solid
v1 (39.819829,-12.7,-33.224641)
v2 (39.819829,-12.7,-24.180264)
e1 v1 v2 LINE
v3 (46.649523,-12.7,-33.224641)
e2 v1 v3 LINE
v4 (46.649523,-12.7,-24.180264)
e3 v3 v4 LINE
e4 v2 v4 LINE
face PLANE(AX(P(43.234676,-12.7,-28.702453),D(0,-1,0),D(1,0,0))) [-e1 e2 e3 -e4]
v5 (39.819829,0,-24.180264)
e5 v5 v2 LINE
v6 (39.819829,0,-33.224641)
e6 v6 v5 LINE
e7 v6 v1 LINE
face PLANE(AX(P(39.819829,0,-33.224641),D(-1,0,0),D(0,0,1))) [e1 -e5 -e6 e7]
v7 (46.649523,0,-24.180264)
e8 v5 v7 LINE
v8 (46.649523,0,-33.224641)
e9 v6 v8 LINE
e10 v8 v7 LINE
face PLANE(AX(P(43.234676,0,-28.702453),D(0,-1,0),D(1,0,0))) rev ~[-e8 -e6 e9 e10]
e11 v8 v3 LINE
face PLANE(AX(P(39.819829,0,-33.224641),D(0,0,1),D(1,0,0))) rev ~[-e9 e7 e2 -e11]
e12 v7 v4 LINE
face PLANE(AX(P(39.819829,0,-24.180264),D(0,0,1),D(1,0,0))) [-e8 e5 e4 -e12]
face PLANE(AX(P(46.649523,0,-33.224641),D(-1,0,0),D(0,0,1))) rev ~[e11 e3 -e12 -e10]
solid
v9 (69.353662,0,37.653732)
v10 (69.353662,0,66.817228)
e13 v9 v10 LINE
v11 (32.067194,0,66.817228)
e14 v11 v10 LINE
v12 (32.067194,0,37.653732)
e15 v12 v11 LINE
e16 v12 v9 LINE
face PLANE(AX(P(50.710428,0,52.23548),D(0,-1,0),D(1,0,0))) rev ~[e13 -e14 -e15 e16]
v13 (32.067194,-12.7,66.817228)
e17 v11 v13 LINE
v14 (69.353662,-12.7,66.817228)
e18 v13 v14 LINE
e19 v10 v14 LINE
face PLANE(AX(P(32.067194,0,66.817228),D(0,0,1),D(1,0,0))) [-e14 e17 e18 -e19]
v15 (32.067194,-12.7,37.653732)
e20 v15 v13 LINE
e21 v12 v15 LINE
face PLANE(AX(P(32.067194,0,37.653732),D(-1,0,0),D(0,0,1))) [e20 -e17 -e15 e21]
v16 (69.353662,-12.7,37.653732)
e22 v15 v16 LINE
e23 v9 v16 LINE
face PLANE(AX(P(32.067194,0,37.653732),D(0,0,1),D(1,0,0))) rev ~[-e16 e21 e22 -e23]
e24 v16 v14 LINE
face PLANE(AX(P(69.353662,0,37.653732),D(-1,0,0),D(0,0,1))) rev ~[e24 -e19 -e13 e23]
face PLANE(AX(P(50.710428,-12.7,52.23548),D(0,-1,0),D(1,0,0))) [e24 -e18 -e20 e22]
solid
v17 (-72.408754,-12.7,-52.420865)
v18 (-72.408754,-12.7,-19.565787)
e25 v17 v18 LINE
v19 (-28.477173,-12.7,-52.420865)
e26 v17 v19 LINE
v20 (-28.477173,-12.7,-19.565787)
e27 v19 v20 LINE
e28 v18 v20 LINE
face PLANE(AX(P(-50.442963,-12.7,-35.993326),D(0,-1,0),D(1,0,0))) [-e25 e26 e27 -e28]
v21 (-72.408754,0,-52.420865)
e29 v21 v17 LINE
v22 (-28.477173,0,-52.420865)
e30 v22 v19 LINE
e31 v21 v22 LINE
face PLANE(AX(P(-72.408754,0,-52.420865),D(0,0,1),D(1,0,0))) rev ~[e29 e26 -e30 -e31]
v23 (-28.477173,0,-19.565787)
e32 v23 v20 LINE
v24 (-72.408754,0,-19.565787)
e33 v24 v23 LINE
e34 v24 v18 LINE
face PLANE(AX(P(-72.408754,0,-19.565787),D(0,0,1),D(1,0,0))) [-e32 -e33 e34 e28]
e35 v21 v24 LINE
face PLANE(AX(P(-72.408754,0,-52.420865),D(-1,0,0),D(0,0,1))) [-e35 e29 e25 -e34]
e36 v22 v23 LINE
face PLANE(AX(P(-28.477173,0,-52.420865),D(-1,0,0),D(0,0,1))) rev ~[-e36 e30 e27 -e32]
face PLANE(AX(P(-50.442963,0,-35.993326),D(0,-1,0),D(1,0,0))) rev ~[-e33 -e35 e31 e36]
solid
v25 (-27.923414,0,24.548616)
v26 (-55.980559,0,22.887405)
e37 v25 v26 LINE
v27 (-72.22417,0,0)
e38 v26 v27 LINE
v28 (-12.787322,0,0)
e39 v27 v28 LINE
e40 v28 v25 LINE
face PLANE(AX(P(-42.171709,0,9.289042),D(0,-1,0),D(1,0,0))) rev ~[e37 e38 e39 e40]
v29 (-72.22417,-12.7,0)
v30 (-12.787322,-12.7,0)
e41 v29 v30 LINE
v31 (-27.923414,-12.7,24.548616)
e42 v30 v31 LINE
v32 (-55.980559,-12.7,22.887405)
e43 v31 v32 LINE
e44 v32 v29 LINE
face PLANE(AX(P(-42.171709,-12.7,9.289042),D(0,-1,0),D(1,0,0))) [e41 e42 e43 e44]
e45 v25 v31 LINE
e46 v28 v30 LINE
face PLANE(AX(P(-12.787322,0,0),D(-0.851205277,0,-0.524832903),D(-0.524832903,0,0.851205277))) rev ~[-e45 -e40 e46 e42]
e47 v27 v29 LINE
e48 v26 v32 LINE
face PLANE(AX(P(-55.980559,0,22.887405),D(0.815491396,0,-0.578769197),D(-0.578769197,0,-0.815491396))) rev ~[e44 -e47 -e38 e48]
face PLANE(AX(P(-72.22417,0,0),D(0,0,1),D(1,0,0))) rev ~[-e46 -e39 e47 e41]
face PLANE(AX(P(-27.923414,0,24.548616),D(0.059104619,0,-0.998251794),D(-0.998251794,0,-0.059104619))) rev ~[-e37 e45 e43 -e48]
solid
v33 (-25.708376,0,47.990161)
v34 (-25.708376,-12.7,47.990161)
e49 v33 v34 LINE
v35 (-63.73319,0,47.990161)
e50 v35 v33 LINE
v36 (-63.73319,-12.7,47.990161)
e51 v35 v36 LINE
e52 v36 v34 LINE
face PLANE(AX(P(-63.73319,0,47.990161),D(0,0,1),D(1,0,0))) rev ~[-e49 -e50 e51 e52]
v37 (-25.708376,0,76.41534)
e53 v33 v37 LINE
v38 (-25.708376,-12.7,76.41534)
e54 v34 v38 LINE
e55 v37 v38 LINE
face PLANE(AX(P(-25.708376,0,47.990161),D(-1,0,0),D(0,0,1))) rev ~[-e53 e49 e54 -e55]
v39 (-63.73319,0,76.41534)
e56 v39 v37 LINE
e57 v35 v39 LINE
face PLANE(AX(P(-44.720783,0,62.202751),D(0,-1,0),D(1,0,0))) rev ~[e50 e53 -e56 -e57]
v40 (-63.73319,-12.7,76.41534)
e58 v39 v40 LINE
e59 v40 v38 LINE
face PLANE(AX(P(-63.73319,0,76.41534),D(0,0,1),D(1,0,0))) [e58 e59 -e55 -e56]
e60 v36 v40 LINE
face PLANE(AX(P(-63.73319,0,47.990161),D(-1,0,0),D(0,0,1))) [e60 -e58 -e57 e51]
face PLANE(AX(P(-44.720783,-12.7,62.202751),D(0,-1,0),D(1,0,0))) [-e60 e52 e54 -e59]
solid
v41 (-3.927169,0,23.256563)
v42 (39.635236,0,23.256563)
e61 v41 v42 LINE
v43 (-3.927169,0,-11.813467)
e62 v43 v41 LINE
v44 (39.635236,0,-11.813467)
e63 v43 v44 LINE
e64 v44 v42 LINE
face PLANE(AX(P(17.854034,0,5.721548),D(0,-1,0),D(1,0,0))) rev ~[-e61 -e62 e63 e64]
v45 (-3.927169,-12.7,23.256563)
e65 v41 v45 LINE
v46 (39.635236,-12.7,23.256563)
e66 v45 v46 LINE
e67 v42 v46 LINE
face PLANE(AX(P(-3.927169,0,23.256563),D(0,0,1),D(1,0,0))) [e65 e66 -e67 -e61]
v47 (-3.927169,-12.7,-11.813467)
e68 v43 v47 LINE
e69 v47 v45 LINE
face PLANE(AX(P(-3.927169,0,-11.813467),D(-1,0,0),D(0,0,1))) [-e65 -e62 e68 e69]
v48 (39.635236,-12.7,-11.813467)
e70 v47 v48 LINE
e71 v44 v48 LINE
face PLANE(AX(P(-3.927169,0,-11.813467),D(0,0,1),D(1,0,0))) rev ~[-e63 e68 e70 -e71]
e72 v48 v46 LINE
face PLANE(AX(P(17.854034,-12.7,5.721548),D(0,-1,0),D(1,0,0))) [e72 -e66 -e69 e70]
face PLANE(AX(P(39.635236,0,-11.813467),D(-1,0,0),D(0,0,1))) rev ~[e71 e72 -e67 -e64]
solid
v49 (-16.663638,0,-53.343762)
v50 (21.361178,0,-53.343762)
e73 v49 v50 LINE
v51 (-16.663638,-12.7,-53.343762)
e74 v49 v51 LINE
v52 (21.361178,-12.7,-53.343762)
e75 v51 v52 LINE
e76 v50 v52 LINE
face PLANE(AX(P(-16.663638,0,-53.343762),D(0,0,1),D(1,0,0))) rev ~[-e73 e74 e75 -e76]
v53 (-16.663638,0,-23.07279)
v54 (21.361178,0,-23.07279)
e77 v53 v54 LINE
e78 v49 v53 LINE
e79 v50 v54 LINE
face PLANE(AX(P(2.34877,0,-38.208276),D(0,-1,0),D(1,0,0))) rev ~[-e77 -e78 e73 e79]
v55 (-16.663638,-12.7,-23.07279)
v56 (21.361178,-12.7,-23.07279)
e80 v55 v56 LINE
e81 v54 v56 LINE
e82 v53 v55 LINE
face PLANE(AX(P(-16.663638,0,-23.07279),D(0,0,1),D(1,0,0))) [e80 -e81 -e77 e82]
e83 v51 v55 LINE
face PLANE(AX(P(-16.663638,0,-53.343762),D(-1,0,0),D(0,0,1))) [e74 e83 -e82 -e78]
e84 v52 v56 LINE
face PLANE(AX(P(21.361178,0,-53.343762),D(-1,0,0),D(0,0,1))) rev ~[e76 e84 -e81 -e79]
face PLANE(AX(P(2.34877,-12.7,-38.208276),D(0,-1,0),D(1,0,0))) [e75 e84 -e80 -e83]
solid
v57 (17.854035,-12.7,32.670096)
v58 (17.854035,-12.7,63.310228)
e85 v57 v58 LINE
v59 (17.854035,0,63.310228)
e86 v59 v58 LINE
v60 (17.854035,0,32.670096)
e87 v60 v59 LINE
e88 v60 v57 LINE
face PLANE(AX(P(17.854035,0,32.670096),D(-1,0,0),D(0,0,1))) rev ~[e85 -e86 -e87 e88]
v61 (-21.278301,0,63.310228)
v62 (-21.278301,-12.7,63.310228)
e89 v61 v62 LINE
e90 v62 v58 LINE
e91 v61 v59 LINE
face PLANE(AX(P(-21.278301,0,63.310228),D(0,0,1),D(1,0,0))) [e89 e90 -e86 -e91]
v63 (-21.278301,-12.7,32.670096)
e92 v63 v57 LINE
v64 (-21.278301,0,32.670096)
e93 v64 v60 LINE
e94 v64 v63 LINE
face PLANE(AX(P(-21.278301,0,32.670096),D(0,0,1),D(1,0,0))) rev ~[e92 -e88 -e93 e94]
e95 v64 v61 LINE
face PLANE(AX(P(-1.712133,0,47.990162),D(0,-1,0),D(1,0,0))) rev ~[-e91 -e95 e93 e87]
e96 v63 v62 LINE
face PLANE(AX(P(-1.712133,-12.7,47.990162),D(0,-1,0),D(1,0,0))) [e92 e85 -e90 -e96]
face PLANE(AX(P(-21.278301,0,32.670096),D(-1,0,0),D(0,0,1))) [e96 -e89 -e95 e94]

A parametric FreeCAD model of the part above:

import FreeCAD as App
import Part
import Sketcher
Q = App.Units.Quantity


def add_polygon(sketch, points):
    """Adds a closed chain of lines whose ends are joined by coincident constraints."""
    first, n = sketch.GeometryCount, len(points)
    for a, b in zip(points, points[1:] + points[:1]):
        sketch.addGeometry(Part.LineSegment(App.Vector(*a, 0), App.Vector(*b, 0)), False)
    for i in range(n):
        sketch.addConstraint(Sketcher.Constraint("Coincident", first + i, 2, first + (i + 1) % n, 1))

doc = App.newDocument("Part")
body = doc.addObject("PartDesign::Body", "Body")
body.AllowCompound = True

# Sketch on XZ plane
sketch1 = body.newObject("Sketcher::SketchObject", "Sketch")
sketch1.AttachmentSupport = (doc.getObject("XZ_Plane"), [""])
sketch1.MapMode = "FlatFace"
add_polygon(sketch1, [(-63.73319, 76.41534), (-63.73319, 47.990161), (-25.708376, 47.990161), (-25.708376, 76.41534)])  # lines 0-3
add_polygon(sketch1, [(-72.408754, -19.565787), (-72.408754, -52.420865), (-28.477173, -52.420865), (-28.477173, -19.565787)])  # lines 4-7
add_polygon(sketch1, [(-16.663638, -23.07279), (-16.663638, -53.343762), (21.361178, -53.343762), (21.361178, -23.07279)])  # lines 8-11
add_polygon(sketch1, [(39.819829, -24.180264), (39.819829, -33.224641), (46.649523, -33.224641), (46.649523, -24.180264)])  # lines 12-15
add_polygon(sketch1, [(-3.927169, 23.256563), (-3.927169, -11.813467), (39.635236, -11.813467), (39.635236, 23.256563)])  # lines 16-19
add_polygon(sketch1, [(-21.278301, 63.310228), (-21.278301, 32.670096), (17.854035, 32.670096), (17.854035, 63.310228)])  # lines 20-23
add_polygon(sketch1, [(32.067194, 66.817228), (32.067194, 37.653732), (69.353662, 37.653732), (69.353662, 66.817228)])  # lines 24-27
add_polygon(sketch1, [(-27.923414, 24.548616), (-55.980559, 22.887405), (-72.22417, 0), (-12.787322, 0)])  # lines 28-31
sketch1.addConstraint([
    Sketcher.Constraint("Vertical", 0),
    Sketcher.Constraint("Horizontal", 1),
    Sketcher.Constraint("Vertical", 2),
    Sketcher.Constraint("Horizontal", 3),
    Sketcher.Constraint("Vertical", 4),
    Sketcher.Constraint("Horizontal", 5),
    Sketcher.Constraint("Vertical", 6),
    Sketcher.Constraint("Horizontal", 7),
    Sketcher.Constraint("Vertical", 8),
    Sketcher.Constraint("Horizontal", 9),
    Sketcher.Constraint("Vertical", 10),
    Sketcher.Constraint("Horizontal", 11),
    Sketcher.Constraint("Vertical", 12),
    Sketcher.Constraint("Horizontal", 13),
    Sketcher.Constraint("Vertical", 14),
    Sketcher.Constraint("Horizontal", 15),
    Sketcher.Constraint("Vertical", 16),
    Sketcher.Constraint("Horizontal", 17),
    Sketcher.Constraint("Vertical", 18),
    Sketcher.Constraint("Horizontal", 19),
    Sketcher.Constraint("Vertical", 20),
    Sketcher.Constraint("Horizontal", 21),
    Sketcher.Constraint("Vertical", 22),
    Sketcher.Constraint("Horizontal", 23),
    Sketcher.Constraint("Vertical", 24),
    Sketcher.Constraint("Horizontal", 25),
    Sketcher.Constraint("Vertical", 26),
    Sketcher.Constraint("Horizontal", 27),
    Sketcher.Constraint("Horizontal", 30),
    Sketcher.Constraint("PointOnObject", 29, 2, -1),
    Sketcher.Constraint("DistanceX", 5, 1, 5, 2, Q("43.931581 mm")),
    Sketcher.Constraint("DistanceY", 0, 2, 0, 1, Q("28.425179 mm")),
    Sketcher.Constraint("DistanceY", 4, 2, 4, 1, Q("32.855079 mm")),
    Sketcher.Constraint("DistanceY", 8, 2, 8, 1, Q("30.270972 mm")),
    Sketcher.Constraint("DistanceY", 16, 2, 16, 1, Q("35.070029 mm")),
    Sketcher.Constraint("DistanceX", 20, 2, -1, 1, Q("21.278301 mm")),
    Sketcher.Constraint("DistanceX", 6, 2, 12, 2, Q("68.297001 mm")),
    Sketcher.Constraint("DistanceY", 19, 2, 1, 2, Q("24.733599 mm")),
    Sketcher.Constraint("DistanceX", 21, 2, 18, 2, Q("21.781201 mm")),
    Sketcher.Constraint("DistanceY", 17, 2, 24, 2, Q("49.467199 mm")),
    Sketcher.Constraint("DistanceY", 22, 2, 26, 2, Q("3.506999 mm")),
    Sketcher.Constraint("Distance", 28, Q("28.106281 mm")),
    Sketcher.Constraint("Distance", 31, Q("28.839831 mm")),
    Sketcher.Constraint("DistanceX", 1, 1, 1, 2, Q("38.024813 mm")),
    Sketcher.Constraint("DistanceX", 9, 1, 9, 2, Q("38.024816 mm")),
    Sketcher.Constraint("DistanceX", 13, 1, 13, 2, Q("6.829694 mm")),
    Sketcher.Constraint("DistanceX", 17, 1, 17, 2, Q("43.562405 mm")),
    Sketcher.Constraint("DistanceX", 21, 1, 21, 2, Q("39.132336 mm")),
    Sketcher.Constraint("DistanceX", 25, 1, 25, 2, Q("37.286467 mm")),
    Sketcher.Constraint("DistanceX", 30, 1, 30, 2, Q("59.436848 mm")),
    Sketcher.Constraint("DistanceY", 12, 2, 12, 1, Q("9.044377 mm")),
    Sketcher.Constraint("DistanceY", 20, 2, 20, 1, Q("30.640132 mm")),
    Sketcher.Constraint("DistanceY", 24, 2, 24, 1, Q("29.163495 mm")),
    Sketcher.Constraint("DistanceX", 0, 2, -1, 1, Q("63.73319 mm")),
    Sketcher.Constraint("DistanceY", -1, 1, 0, 2, Q("47.990161 mm")),
    Sketcher.Constraint("DistanceY", 8, 2, -1, 1, Q("53.343762 mm")),
    Sketcher.Constraint("DistanceX", -1, 1, 12, 2, Q("39.819829 mm")),
    Sketcher.Constraint("DistanceY", 12, 2, -1, 1, Q("33.224641 mm")),
    Sketcher.Constraint("DistanceX", -1, 1, 25, 2, Q("69.353662 mm")),
    Sketcher.Constraint("DistanceX", 28, 2, -1, 1, Q("55.980559 mm")),
    Sketcher.Constraint("DistanceX", 29, 2, -1, 1, Q("72.22417 mm")),
    Sketcher.Constraint("DistanceY", 6, 2, 1, 2, Q("67.555948 mm")),
    Sketcher.Constraint("DistanceX", 1, 2, 8, 2, Q("9.044739 mm")),
    Sketcher.Constraint("DistanceY", 28, 2, 20, 2, Q("9.782691 mm")),
])
pad1 = body.newObject("PartDesign::Pad", "Pad")
pad1.Profile = sketch1
pad1.Length = Q("0.5 in")

doc.recompute()
